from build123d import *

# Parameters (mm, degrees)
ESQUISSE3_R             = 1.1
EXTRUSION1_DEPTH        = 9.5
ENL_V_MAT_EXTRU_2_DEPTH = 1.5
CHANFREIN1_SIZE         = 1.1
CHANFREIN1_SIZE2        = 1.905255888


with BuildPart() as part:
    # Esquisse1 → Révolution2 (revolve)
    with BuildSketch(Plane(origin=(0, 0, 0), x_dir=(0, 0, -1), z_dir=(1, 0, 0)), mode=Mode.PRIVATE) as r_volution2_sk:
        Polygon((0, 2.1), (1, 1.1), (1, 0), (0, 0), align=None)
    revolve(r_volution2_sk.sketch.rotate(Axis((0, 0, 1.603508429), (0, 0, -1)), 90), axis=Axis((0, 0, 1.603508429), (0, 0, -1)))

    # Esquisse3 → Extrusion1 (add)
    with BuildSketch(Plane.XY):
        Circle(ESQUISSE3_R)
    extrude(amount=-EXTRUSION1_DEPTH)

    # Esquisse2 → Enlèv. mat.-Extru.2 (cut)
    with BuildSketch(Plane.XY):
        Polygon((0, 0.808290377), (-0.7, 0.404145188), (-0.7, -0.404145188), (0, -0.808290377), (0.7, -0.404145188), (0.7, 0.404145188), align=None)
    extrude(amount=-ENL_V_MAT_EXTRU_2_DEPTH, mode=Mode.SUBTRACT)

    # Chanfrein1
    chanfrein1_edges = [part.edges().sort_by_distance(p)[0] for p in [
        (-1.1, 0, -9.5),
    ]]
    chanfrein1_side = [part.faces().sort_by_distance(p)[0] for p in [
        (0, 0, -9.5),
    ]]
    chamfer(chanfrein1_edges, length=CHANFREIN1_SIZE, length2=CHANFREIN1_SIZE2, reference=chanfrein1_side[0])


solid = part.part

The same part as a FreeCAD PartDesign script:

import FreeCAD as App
import Part
import Sketcher

V = App.Vector
Q = App.Units.Quantity


def edges_at(feature, points):
    """Names of the edges that pass closest to the given points."""
    edges = feature.Shape.Edges
    near = lambda p: min(range(len(edges)), key=lambda i: edges[i].distToShape(Part.Vertex(*p))[0])
    return sorted({f"Edge{near(p) + 1}" for p in points})


def add_polygon(sketch, points):
    """Adds a closed chain of lines whose ends are joined by coincident constraints."""
    first, n = sketch.GeometryCount, len(points)
    for a, b in zip(points, points[1:] + points[:1]):
        sketch.addGeometry(Part.LineSegment(App.Vector(*a, 0), App.Vector(*b, 0)), False)
    for i in range(n):
        sketch.addConstraint(Sketcher.Constraint("Coincident", first + i, 2, first + (i + 1) % n, 1))

doc = App.newDocument("Part")
body = doc.addObject("PartDesign::Body", "Body")

# Sketch on YZ plane
sketch1 = body.newObject("Sketcher::SketchObject", "Sketch")
sketch1.AttachmentSupport = (doc.getObject("YZ_Plane"), [""])
sketch1.MapMode = "FlatFace"
add_polygon(sketch1, [(1.1, -1), (2.1, 0), (0, 0), (0, -1)])  # lines 0-3
sketch1.addConstraint([
    Sketcher.Constraint("Horizontal", 1),
    Sketcher.Constraint("Vertical", 2),
    Sketcher.Constraint("Horizontal", 3),
    Sketcher.Constraint("Coincident", 1, 2, -1, 1),
    Sketcher.Constraint("DistanceY", 2, 2, 2, 1, 1.0),
    Sketcher.Constraint("Angle", 0, Q("45 deg")),
    Sketcher.Constraint("DistanceX", 1, 2, 1, 1, 2.1),
])
revolution = body.newObject("PartDesign::Revolution", "Revolution")
revolution.Profile = sketch1
revolution.ReferenceAxis = (sketch1, ["V_Axis"])
revolution.Angle = 360

# Sketch on XY plane
sketch2 = body.newObject("Sketcher::SketchObject", "Sketch001")
sketch2.AttachmentSupport = (doc.getObject("XY_Plane"), [""])
sketch2.MapMode = "FlatFace"
sketch2.addGeometry(Part.Circle(V(0, 0, 0), V(0, 0, 1), 1.1), False)
sketch2.addConstraint([
    Sketcher.Constraint("Coincident", 0, 3, -1, 1),
    Sketcher.Constraint("Diameter", 0, 2.2),
])
pad1 = body.newObject("PartDesign::Pad", "Pad")
pad1.Profile = sketch2
pad1.Length = 9.5
pad1.Reversed = True

# Sketch on XY plane
sketch3 = body.newObject("Sketcher::SketchObject", "Sketch002")
sketch3.AttachmentSupport = (doc.getObject("XY_Plane"), [""])
sketch3.MapMode = "FlatFace"
add_polygon(sketch3, [(0, 0.8), (-0.7, 0.4), (-0.7, -0.4), (0, -0.8), (0.7, -0.4), (0.7, 0.4)])  # lines 0-5
sketch3.addConstraint([
    Sketcher.Constraint("Vertical", 1),
    Sketcher.Constraint("Vertical", 4),
    Sketcher.Constraint("Symmetric", 0, 2, 3, 2, -1, 1),
    Sketcher.Constraint("Symmetric", 2, 2, 5, 2, -1, 1),
    Sketcher.Constraint("PointOnObject", 2, 2, -2),
    Sketcher.Constraint("Parallel", 2, 5),
    Sketcher.Constraint("Horizontal", 1, 2, 3, 2),
    Sketcher.Constraint("Angle", 0, Q("-150 deg")),
    Sketcher.Constraint("DistanceX", 0, 2, -1, 1, 0.7),
    Sketcher.Constraint("DistanceY", 1, 2, 1, 1, 0.80829),
])
pocket1 = body.newObject("PartDesign::Pocket", "Pocket")
pocket1.Profile = sketch3
pocket1.Length = 1.5
doc.recompute()

chamfer = body.newObject("PartDesign::Chamfer", "Chamfer")
chamfer.Base = (pocket1, edges_at(pocket1, [(-1.1, 0, -9.5)]))
chamfer.ChamferType = "Two distances"
chamfer.Size = 1.1
chamfer.Size2 = 1.905256
chamfer.FlipDirection = True

doc.recompute()
